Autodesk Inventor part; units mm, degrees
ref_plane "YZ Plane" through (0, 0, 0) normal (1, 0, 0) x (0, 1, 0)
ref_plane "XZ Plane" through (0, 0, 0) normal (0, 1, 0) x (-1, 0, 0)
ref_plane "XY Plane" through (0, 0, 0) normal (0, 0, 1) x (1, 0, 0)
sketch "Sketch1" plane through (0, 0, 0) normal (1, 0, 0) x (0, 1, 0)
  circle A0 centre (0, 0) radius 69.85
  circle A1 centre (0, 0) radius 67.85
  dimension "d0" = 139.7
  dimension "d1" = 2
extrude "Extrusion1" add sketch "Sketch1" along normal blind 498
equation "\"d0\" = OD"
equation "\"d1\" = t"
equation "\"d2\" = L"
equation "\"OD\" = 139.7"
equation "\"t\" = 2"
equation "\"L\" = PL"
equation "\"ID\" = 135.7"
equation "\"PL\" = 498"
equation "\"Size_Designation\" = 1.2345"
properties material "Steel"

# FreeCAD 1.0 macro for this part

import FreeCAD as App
import Part
import Sketcher

V = App.Vector
Q = App.Units.Quantity

doc = App.newDocument("Part")
body = doc.addObject("PartDesign::Body", "Body")

# Sketch on YZ plane
sketch1 = body.newObject("Sketcher::SketchObject", "Sketch")
sketch1.AttachmentSupport = (doc.getObject("YZ_Plane"), [""])
sketch1.MapMode = "FlatFace"
sketch1.addGeometry([
    Part.Circle(V(0, 0, 0), V(0, 0, 1), 70),
    Part.Circle(V(0, 0, 0), V(0, 0, 1), 68),
], False)
sketch1.addConstraint([
    Sketcher.Constraint("Coincident", 0, 3, -1, 1),
    Sketcher.Constraint("Coincident", 1, 3, -1, 1),
    Sketcher.Constraint("Diameter", 0, Q("139.7 mm")),
    Sketcher.Constraint("Diameter", 1, Q("135.7 mm")),
])
pad1 = body.newObject("PartDesign::Pad", "Pad")
pad1.Profile = sketch1
pad1.Length = 498

doc.recompute()
